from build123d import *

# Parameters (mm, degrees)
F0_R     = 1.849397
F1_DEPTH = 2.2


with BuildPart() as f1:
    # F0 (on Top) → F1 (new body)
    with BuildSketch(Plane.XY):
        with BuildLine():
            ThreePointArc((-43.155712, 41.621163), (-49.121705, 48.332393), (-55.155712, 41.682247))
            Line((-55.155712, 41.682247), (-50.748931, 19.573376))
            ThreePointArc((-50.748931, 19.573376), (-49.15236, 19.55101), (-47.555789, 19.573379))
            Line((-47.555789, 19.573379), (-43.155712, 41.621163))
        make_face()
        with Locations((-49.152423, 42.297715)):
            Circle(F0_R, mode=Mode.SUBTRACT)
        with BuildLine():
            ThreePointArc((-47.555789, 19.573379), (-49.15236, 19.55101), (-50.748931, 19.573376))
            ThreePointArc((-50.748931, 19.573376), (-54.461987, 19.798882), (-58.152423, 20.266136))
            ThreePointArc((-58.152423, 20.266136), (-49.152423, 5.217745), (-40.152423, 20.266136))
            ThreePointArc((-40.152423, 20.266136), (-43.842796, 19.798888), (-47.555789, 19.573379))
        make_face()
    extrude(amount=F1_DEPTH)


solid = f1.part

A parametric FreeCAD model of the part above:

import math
import FreeCAD as App
import Part
import Sketcher

doc = App.newDocument("Part")
body = doc.addObject("PartDesign::Body", "Body")

sketch1 = doc.addObject("Sketcher::SketchObject", "Sketch")
body.addObject(sketch1)
sketch1.AttachmentSupport = (doc.XY_Plane, [""])
sketch1.MapMode = "FlatFace"
sketch1.addGeometry([
    Part.ArcOfCircle(Part.Circle(App.Vector(-49.152424, 42.297716, 0), App.Vector(0, 0, 1), 6.034755), math.radians(-6.436927), math.radians(185.853622)),
    Part.LineSegment(App.Vector(-55.155712, 41.682247, 0), App.Vector(-50.748931, 19.573376, 0)),
    Part.ArcOfCircle(Part.Circle(App.Vector(-49.152416, 76.542013, 0), App.Vector(0, 0, 1), 56.991004), math.radians(-99.086174), math.radians(-91.605263)),
    Part.ArcOfCircle(Part.Circle(App.Vector(-49.152423, 15.433258, 0), App.Vector(0, 0, 1), 10.215513), math.radians(151.764805), math.radians(388.235195)),
    Part.ArcOfCircle(Part.Circle(App.Vector(-49.152451, 76.542186, 0), App.Vector(0, 0, 1), 56.991177), math.radians(-88.394595), math.radians(-80.913833)),
    Part.LineSegment(App.Vector(-47.555789, 19.573379, 0), App.Vector(-43.155712, 41.621163, 0)),
    Part.Circle(App.Vector(-49.152423, 42.297715, 0), App.Vector(0, 0, 1), 1.849397),
], False)
sketch1.addConstraint([
    Sketcher.Constraint("Coincident", 0, 2, 1, 1),
    Sketcher.Constraint("Coincident", 1, 2, 2, 2),
    Sketcher.Constraint("Coincident", 2, 1, 3, 1),
    Sketcher.Constraint("Coincident", 3, 2, 4, 2),
    Sketcher.Constraint("Coincident", 4, 1, 5, 1),
    Sketcher.Constraint("Coincident", 5, 2, 0, 1),
    Sketcher.Constraint("Coincident", 6, 3, 0, 3),
    Sketcher.Constraint("Horizontal", 2, 1, 3, 2),
    Sketcher.Constraint("Vertical", 0, 3, 3, 3),
    Sketcher.Constraint("DistanceX", 2, 1, 3, 3, 9.0),
    Sketcher.Constraint("DistanceX", 0, 2, 5, 2, 12.0),
    Sketcher.Constraint("Diameter", 6, 3.698794),
    Sketcher.Constraint("Radius", 0, 6.034755),
    Sketcher.Constraint("Radius", 2, 56.991004),
    Sketcher.Constraint("Radius", 3, 10.215513),
    Sketcher.Constraint("Radius", 4, 56.991177),
    Sketcher.Constraint("DistanceY", 6, 3, 2, 3, 34.244298),
    Sketcher.Constraint("Distance", 5, 22.482559),
    Sketcher.Constraint("DistanceY", -1, 1, 3, 3, 15.433258),
    Sketcher.Constraint("DistanceX", 4, 3, -1, 1, 49.152451),
    Sketcher.Constraint("DistanceX", 1, 2, -1, 1, 50.748931),
    Sketcher.Constraint("DistanceX", 4, 1, -1, 1, 47.555789),
    Sketcher.Constraint("DistanceY", -1, 1, 4, 1, 19.573379),
    Sketcher.Constraint("DistanceY", 0, 3, 4, 3, 34.24447),
])
pad1 = doc.addObject("PartDesign::Pad", "Pad")
body.addObject(pad1)
pad1.Profile = sketch1
pad1.Length = 2.2

doc.recompute()
